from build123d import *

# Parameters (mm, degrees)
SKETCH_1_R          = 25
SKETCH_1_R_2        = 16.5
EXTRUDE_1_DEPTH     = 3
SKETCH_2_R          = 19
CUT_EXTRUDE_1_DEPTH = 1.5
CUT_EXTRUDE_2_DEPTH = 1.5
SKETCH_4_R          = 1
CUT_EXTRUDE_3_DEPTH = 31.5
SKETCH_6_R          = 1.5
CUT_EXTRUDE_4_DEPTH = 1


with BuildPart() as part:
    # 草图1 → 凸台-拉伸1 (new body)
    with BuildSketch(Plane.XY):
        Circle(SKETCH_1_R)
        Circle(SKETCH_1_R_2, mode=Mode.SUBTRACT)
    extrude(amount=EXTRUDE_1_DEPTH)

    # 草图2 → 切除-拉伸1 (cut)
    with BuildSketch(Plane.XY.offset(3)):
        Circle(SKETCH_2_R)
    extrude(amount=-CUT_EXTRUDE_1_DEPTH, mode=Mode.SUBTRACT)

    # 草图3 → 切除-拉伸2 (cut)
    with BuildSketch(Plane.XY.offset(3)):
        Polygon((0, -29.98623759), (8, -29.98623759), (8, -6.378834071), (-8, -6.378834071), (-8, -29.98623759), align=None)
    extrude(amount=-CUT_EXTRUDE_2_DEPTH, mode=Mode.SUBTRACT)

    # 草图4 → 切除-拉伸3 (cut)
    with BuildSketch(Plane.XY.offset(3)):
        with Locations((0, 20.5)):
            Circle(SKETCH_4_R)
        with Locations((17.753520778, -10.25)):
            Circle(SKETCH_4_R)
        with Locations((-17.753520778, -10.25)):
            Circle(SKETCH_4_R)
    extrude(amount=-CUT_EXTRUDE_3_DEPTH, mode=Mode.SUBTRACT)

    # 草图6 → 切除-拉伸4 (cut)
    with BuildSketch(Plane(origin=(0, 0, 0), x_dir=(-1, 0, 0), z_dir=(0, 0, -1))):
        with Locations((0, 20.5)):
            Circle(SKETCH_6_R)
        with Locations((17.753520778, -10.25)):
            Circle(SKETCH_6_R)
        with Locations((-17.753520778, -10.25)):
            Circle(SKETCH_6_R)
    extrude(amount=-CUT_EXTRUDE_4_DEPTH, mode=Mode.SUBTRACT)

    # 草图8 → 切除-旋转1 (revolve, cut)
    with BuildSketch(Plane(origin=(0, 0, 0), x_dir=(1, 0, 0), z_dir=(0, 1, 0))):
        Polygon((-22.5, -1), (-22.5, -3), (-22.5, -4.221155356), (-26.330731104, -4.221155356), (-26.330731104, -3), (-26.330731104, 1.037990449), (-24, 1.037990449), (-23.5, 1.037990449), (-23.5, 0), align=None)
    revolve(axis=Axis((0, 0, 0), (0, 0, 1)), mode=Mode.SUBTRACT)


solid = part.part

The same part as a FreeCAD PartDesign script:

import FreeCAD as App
import Part
import Sketcher

V = App.Vector
Q = App.Units.Quantity

doc = App.newDocument("Part")
body = doc.addObject("PartDesign::Body", "Body")

# Sketch on XY plane
sketch1 = body.newObject("Sketcher::SketchObject", "Sketch")
sketch1.AttachmentSupport = (doc.getObject("XY_Plane"), [""])
sketch1.MapMode = "FlatFace"
sketch1.addGeometry(Part.Circle(V(0, 0, 0), V(0, 0, 1), 25), False)
sketch1.addGeometry(Part.Circle(V(0, 0, 0), V(0, 0, 1), 16), False)
sketch1.addConstraint(Sketcher.Constraint("Coincident", 0, 3, -1, 1))
sketch1.addConstraint(Sketcher.Constraint("Coincident", 1, 3, -1, 1))
sketch1.addConstraint(Sketcher.Constraint("Diameter", 0, Q("50 mm")))
sketch1.addConstraint(Sketcher.Constraint("Diameter", 1, Q("33 mm")))
pad1 = body.newObject("PartDesign::Pad", "Pad")
pad1.Profile = sketch1
pad1.Length = 3

# Sketch on XY plane
sketch2 = body.newObject("Sketcher::SketchObject", "Sketch001")
sketch2.AttachmentSupport = (doc.getObject("XY_Plane"), [""])
sketch2.MapMode = "FlatFace"
sketch2.AttachmentOffset = App.Placement(V(0, 0, 3), App.Rotation())
sketch2.addGeometry(Part.Circle(V(0, 0, 0), V(0, 0, 1), 19), False)
sketch2.addConstraint(Sketcher.Constraint("Coincident", 0, 3, -1, 1))
sketch2.addConstraint(Sketcher.Constraint("Diameter", 0, Q("38 mm")))
pocket1 = body.newObject("PartDesign::Pocket", "Pocket")
pocket1.Profile = sketch2
pocket1.Length = 1.5

# Sketch on XY plane
sketch3 = body.newObject("Sketcher::SketchObject", "Sketch002")
sketch3.AttachmentSupport = (doc.getObject("XY_Plane"), [""])
sketch3.MapMode = "FlatFace"
sketch3.AttachmentOffset = App.Placement(V(0, 0, 3), App.Rotation())
sketch3.addGeometry(Part.LineSegment(V(8, -30, 0), V(8, -6, 0)), False)
sketch3.addGeometry(Part.LineSegment(V(8, -6, 0), V(-8, -6, 0)), False)
sketch3.addGeometry(Part.LineSegment(V(-8, -6, 0), V(-8, -30, 0)), False)
sketch3.addGeometry(Part.LineSegment(V(-8, -30, 0), V(8, -30, 0)), False)
sketch3.addConstraint(Sketcher.Constraint("Coincident", 0, 2, 1, 1))
sketch3.addConstraint(Sketcher.Constraint("Coincident", 1, 2, 2, 1))
sketch3.addConstraint(Sketcher.Constraint("Coincident", 2, 2, 3, 1))
sketch3.addConstraint(Sketcher.Constraint("Coincident", 3, 2, 0, 1))
sketch3.addConstraint(Sketcher.Constraint("Vertical", 0))
sketch3.addConstraint(Sketcher.Constraint("Horizontal", 1))
sketch3.addConstraint(Sketcher.Constraint("Vertical", 2))
sketch3.addConstraint(Sketcher.Constraint("Horizontal", 3))
sketch3.addConstraint(Sketcher.Constraint("DistanceX", 1, 2, 1, 1, Q("16 mm")))
sketch3.addConstraint(Sketcher.Constraint("DistanceX", -1, 1, 0, 2, Q("8 mm")))
sketch3.addConstraint(Sketcher.Constraint("DistanceY", 0, 1, 0, 2, Q("23.607404 mm")))
sketch3.addConstraint(Sketcher.Constraint("DistanceY", 0, 2, -1, 1, Q("6.378834 mm")))
pocket2 = body.newObject("PartDesign::Pocket", "Pocket001")
pocket2.Profile = sketch3
pocket2.Length = 1.5

# Sketch on XY plane
sketch4 = body.newObject("Sketcher::SketchObject", "Sketch003")
sketch4.AttachmentSupport = (doc.getObject("XY_Plane"), [""])
sketch4.MapMode = "FlatFace"
sketch4.AttachmentOffset = App.Placement(V(0, 0, 3), App.Rotation())
sketch4.addGeometry(Part.Circle(V(0, 20.5, 0), V(0, 0, 1), 1), False)
sketch4.addGeometry(Part.Circle(V(17.8, -10.2, 0), V(0, 0, 1), 1), False)
sketch4.addGeometry(Part.Circle(V(-17.8, -10.2, 0), V(0, 0, 1), 1), False)
sketch4.addConstraint(Sketcher.Constraint("Equal", 0, 1))
sketch4.addConstraint(Sketcher.Constraint("Equal", 1, 2))
sketch4.addConstraint(Sketcher.Constraint("Symmetric", 1, 3, 2, 3, -2))
sketch4.addConstraint(Sketcher.Constraint("PointOnObject", 0, 3, -2))
sketch4.addConstraint(Sketcher.Constraint("Diameter", 0, Q("2 mm")))
sketch4.addConstraint(Sketcher.Constraint("DistanceY", -1, 1, 0, 3, Q("20.5 mm")))
sketch4.addConstraint(Sketcher.Constraint("DistanceY", 1, 3, -1, 1, Q("10.25 mm")))
sketch4.addConstraint(Sketcher.Constraint("DistanceX", -1, 1, 1, 3, Q("17.753521 mm")))
pocket3 = body.newObject("PartDesign::Pocket", "Pocket002")
pocket3.Profile = sketch4
pocket3.Length = 31.5

# Sketch on XY plane
sketch5 = body.newObject("Sketcher::SketchObject", "Sketch004")
sketch5.AttachmentSupport = (doc.getObject("XY_Plane"), [""])
sketch5.MapMode = "FlatFace"
sketch5.addGeometry(Part.Circle(V(0, 20.5, 0), V(0, 0, 1), 1.5), False)
sketch5.addGeometry(Part.Circle(V(-17.8, -10.2, 0), V(0, 0, 1), 1.5), False)
sketch5.addGeometry(Part.Circle(V(17.8, -10.2, 0), V(0, 0, 1), 1.5), False)
sketch5.addConstraint(Sketcher.Constraint("Equal", 0, 1))
sketch5.addConstraint(Sketcher.Constraint("Equal", 1, 2))
sketch5.addConstraint(Sketcher.Constraint("Symmetric", 1, 3, 2, 3, -2))
sketch5.addConstraint(Sketcher.Constraint("PointOnObject", 0, 3, -2))
sketch5.addConstraint(Sketcher.Constraint("Diameter", 0, Q("3 mm")))
sketch5.addConstraint(Sketcher.Constraint("DistanceY", -1, 1, 0, 3, Q("20.5 mm")))
sketch5.addConstraint(Sketcher.Constraint("DistanceY", 1, 3, -1, 1, Q("10.25 mm")))
sketch5.addConstraint(Sketcher.Constraint("DistanceX", 1, 3, -1, 1, Q("17.753521 mm")))
pocket4 = body.newObject("PartDesign::Pocket", "Pocket003")
pocket4.Profile = sketch5
pocket4.Length = 1
pocket4.Reversed = True

# Sketch on XZ plane
sketch6 = body.newObject("Sketcher::SketchObject", "Sketch005")
sketch6.AttachmentSupport = (doc.getObject("XZ_Plane"), [""])
sketch6.MapMode = "FlatFace"
sketch6.addGeometry(Part.LineSegment(V(-22.5, 4.2, 0), V(-22.5, 1, 0)), False)
sketch6.addGeometry(Part.LineSegment(V(-22.5, 1, 0), V(-23.5, 0, 0)), False)
sketch6.addGeometry(Part.LineSegment(V(-23.5, 0, 0), V(-23.5, -1, 0)), False)
sketch6.addGeometry(Part.LineSegment(V(-23.5, -1, 0), V(-26.3, -1, 0)), False)
sketch6.addGeometry(Part.LineSegment(V(-26.3, -1, 0), V(-26.3, 4.2, 0)), False)
sketch6.addGeometry(Part.LineSegment(V(-26.3, 4.2, 0), V(-22.5, 4.2, 0)), False)
sketch6.addConstraint(Sketcher.Constraint("Coincident", 0, 2, 1, 1))
sketch6.addConstraint(Sketcher.Constraint("Coincident", 1, 2, 2, 1))
sketch6.addConstraint(Sketcher.Constraint("Coincident", 2, 2, 3, 1))
sketch6.addConstraint(Sketcher.Constraint("Coincident", 3, 2, 4, 1))
sketch6.addConstraint(Sketcher.Constraint("Coincident", 4, 2, 5, 1))
sketch6.addConstraint(Sketcher.Constraint("Coincident", 5, 2, 0, 1))
sketch6.addConstraint(Sketcher.Constraint("Vertical", 0))
sketch6.addConstraint(Sketcher.Constraint("Vertical", 2))
sketch6.addConstraint(Sketcher.Constraint("Horizontal", 3))
sketch6.addConstraint(Sketcher.Constraint("Vertical", 4))
sketch6.addConstraint(Sketcher.Constraint("Horizontal", 5))
sketch6.addConstraint(Sketcher.Constraint("PointOnObject", 1, 2, -1))
sketch6.addConstraint(Sketcher.Constraint("Angle", 1, Q("-135 deg")))
sketch6.addConstraint(Sketcher.Constraint("DistanceY", -1, 1, 0, 2, Q("1 mm")))
sketch6.addConstraint(Sketcher.Constraint("DistanceX", 0, 2, -1, 1, Q("22.5 mm")))
sketch6.addConstraint(Sketcher.Constraint("DistanceX", 3, 2, 3, 1, Q("2.830731 mm")))
sketch6.addConstraint(Sketcher.Constraint("DistanceY", 2, 2, 2, 1, Q("1.03799 mm")))
sketch6.addConstraint(Sketcher.Constraint("DistanceY", 0, 2, 0, 1, Q("3.221155 mm")))
groove = body.newObject("PartDesign::Groove", "Groove")
groove.Profile = sketch6
groove.ReferenceAxis = (sketch6, ["V_Axis"])
groove.Angle = 360

doc.recompute()
